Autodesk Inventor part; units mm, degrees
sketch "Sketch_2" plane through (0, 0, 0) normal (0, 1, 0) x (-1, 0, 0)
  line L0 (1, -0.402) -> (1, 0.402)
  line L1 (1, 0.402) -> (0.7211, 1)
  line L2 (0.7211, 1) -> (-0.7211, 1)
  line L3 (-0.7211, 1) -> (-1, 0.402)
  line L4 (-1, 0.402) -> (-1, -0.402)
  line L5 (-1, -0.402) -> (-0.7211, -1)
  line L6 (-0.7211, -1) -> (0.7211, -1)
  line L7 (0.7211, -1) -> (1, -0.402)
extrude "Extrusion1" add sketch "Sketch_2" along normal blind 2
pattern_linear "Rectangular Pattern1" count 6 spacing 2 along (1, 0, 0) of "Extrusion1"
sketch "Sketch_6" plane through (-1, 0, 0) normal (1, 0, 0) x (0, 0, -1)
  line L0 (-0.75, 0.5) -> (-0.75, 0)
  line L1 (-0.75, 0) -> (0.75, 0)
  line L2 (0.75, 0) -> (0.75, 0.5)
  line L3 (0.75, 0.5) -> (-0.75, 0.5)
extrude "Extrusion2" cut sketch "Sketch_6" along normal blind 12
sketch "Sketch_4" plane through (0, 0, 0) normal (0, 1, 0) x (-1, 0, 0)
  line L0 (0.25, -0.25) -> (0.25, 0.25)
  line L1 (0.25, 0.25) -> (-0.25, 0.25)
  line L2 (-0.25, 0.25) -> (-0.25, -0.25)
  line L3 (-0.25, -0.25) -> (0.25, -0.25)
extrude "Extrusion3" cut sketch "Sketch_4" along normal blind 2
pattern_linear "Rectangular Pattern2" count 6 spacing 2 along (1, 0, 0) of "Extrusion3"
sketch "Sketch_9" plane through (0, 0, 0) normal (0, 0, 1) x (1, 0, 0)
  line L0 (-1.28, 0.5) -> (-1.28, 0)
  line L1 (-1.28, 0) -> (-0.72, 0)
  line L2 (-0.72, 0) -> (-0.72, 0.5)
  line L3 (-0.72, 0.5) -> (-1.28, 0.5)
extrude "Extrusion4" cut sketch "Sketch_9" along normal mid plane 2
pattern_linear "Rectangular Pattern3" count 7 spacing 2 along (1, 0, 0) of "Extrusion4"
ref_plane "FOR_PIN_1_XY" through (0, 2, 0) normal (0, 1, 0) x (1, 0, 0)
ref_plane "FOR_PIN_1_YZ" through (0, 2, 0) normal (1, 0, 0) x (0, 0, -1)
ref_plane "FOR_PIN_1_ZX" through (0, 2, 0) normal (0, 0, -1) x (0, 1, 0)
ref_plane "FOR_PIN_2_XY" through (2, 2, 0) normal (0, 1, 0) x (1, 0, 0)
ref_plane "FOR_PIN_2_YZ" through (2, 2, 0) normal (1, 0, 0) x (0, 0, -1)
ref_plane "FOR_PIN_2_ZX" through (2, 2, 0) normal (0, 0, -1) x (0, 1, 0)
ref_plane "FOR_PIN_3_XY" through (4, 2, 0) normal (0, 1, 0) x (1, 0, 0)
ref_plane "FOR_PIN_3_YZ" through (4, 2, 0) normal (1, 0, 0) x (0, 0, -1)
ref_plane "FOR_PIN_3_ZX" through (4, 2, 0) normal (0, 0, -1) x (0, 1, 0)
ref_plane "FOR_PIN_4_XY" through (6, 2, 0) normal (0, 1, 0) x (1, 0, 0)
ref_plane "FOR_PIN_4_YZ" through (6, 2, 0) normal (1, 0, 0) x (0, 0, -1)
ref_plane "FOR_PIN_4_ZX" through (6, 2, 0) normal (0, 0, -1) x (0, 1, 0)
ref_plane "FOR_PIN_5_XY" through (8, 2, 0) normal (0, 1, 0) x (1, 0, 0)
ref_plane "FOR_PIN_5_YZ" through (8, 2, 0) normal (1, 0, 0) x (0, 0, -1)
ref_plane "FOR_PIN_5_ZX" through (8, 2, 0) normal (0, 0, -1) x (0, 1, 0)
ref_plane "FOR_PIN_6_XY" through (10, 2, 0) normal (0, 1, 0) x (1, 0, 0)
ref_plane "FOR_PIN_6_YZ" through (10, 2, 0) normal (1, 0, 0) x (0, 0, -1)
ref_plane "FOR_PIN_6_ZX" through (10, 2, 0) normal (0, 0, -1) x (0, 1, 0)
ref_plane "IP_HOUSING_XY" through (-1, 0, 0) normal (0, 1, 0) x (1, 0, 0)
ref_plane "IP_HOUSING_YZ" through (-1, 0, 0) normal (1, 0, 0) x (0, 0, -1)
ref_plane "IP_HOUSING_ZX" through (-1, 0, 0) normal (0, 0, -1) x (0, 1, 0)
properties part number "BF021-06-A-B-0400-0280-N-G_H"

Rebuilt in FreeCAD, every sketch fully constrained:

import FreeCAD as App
import Part
import Sketcher
from FreeCAD import Vector
Q = App.Units.Quantity

doc = App.newDocument("Part")
body = doc.addObject("PartDesign::Body", "Body")

# Sketch on XZ plane
sketch1 = doc.addObject("Sketcher::SketchObject", "Sketch")
body.addObject(sketch1)
sketch1.AttachmentSupport = (doc.XZ_Plane, [""])
sketch1.MapMode = "FlatFace"
sketch1.addGeometry([
    Part.LineSegment(Vector(-0.7, -1, 0), Vector(-1, -0.4, 0)),  # 0
    Part.LineSegment(Vector(-1, -0.4, 0), Vector(-1, 0.4, 0)),  # 1
    Part.LineSegment(Vector(-1, 0.4, 0), Vector(-0.7, 1, 0)),  # 2
    Part.LineSegment(Vector(-0.7, 1, 0), Vector(0.7, 1, 0)),  # 3
    Part.LineSegment(Vector(0.7, 1, 0), Vector(1, 0.4, 0)),  # 4
    Part.LineSegment(Vector(1, 0.4, 0), Vector(1, -0.4, 0)),  # 5
    Part.LineSegment(Vector(1, -0.4, 0), Vector(0.7, -1, 0)),  # 6
    Part.LineSegment(Vector(0.7, -1, 0), Vector(-0.7, -1, 0)),  # 7
], False)
sketch1.addConstraint([
    Sketcher.Constraint("Coincident", 0, 2, 1, 1),
    Sketcher.Constraint("Coincident", 1, 2, 2, 1),
    Sketcher.Constraint("Coincident", 2, 2, 3, 1),
    Sketcher.Constraint("Coincident", 3, 2, 4, 1),
    Sketcher.Constraint("Coincident", 4, 2, 5, 1),
    Sketcher.Constraint("Coincident", 5, 2, 6, 1),
    Sketcher.Constraint("Coincident", 6, 2, 7, 1),
    Sketcher.Constraint("Coincident", 7, 2, 0, 1),
    Sketcher.Constraint("Vertical", 1),
    Sketcher.Constraint("Horizontal", 3),
    Sketcher.Constraint("Vertical", 5),
    Sketcher.Constraint("Horizontal", 7),
    Sketcher.Constraint("Symmetric", 0, 2, 4, 2, -1, 1),
    Sketcher.Constraint("Symmetric", 2, 2, 6, 2, -1, 1),
    Sketcher.Constraint("Parallel", 0, 4),
    Sketcher.Constraint("Parallel", 2, 6),
    Sketcher.Constraint("Horizontal", 1, 2, 4, 2),
    Sketcher.Constraint("Vertical", 3, 2, 6, 2),
    Sketcher.Constraint("DistanceX", 0, 2, -1, 1, Q("1 mm")),
    Sketcher.Constraint("DistanceY", -1, 1, 2, 2, Q("1 mm")),
    Sketcher.Constraint("DistanceY", 1, 1, 1, 2, Q("0.804 mm")),
    Sketcher.Constraint("DistanceX", 3, 1, 3, 2, Q("1.4422 mm")),
])
pad1 = doc.addObject("PartDesign::Pad", "Pad")
body.addObject(pad1)
pad1.Profile = sketch1
pad1.Length = 2
pad1.Reversed = True
doc.recompute()

linearpattern = doc.addObject("PartDesign::LinearPattern", "LinearPattern")
body.addObject(linearpattern)
linearpattern.Originals = [pad1]
linearpattern.Direction = (doc.X_Axis, [""])
linearpattern.Mode = "offset"
linearpattern.Offset = 2
linearpattern.Occurrences = 6
body.Tip = linearpattern

# Sketch on YZ plane
sketch2 = doc.addObject("Sketcher::SketchObject", "Sketch001")
body.addObject(sketch2)
sketch2.AttachmentSupport = (doc.YZ_Plane, [""])
sketch2.MapMode = "FlatFace"
sketch2.AttachmentOffset = App.Placement(Vector(0, 0, -1), App.Rotation())
sketch2.addGeometry([
    Part.LineSegment(Vector(0.5, -0.8, 0), Vector(0.5, 0.8, 0)),
    Part.LineSegment(Vector(0.5, 0.8, 0), Vector(0, 0.8, 0)),
    Part.LineSegment(Vector(0, 0.8, 0), Vector(0, -0.8, 0)),
    Part.LineSegment(Vector(0, -0.8, 0), Vector(0.5, -0.8, 0)),
], False)
sketch2.addConstraint([
    Sketcher.Constraint("Coincident", 0, 2, 1, 1),
    Sketcher.Constraint("Coincident", 1, 2, 2, 1),
    Sketcher.Constraint("Coincident", 2, 2, 3, 1),
    Sketcher.Constraint("Coincident", 3, 2, 0, 1),
    Sketcher.Constraint("Vertical", 0),
    Sketcher.Constraint("Horizontal", 1),
    Sketcher.Constraint("Vertical", 2),
    Sketcher.Constraint("Horizontal", 3),
    Sketcher.Constraint("Symmetric", 1, 2, 2, 2, -1, 1),
    Sketcher.Constraint("DistanceX", 1, 2, 1, 1, Q("0.5 mm")),
    Sketcher.Constraint("DistanceY", 0, 1, 0, 2, Q("1.5 mm")),
])
pocket1 = doc.addObject("PartDesign::Pocket", "Pocket")
body.addObject(pocket1)
pocket1.Profile = sketch2
pocket1.Length = 12
pocket1.Reversed = True

# Sketch on XZ plane
sketch3 = doc.addObject("Sketcher::SketchObject", "Sketch002")
body.addObject(sketch3)
sketch3.AttachmentSupport = (doc.XZ_Plane, [""])
sketch3.MapMode = "FlatFace"
sketch3.addGeometry([
    Part.LineSegment(Vector(0.2, -0.2, 0), Vector(-0.2, -0.2, 0)),
    Part.LineSegment(Vector(-0.2, -0.2, 0), Vector(-0.2, 0.2, 0)),
    Part.LineSegment(Vector(-0.2, 0.2, 0), Vector(0.2, 0.2, 0)),
    Part.LineSegment(Vector(0.2, 0.2, 0), Vector(0.2, -0.2, 0)),
], False)
sketch3.addConstraint([
    Sketcher.Constraint("Coincident", 0, 2, 1, 1),
    Sketcher.Constraint("Coincident", 1, 2, 2, 1),
    Sketcher.Constraint("Coincident", 2, 2, 3, 1),
    Sketcher.Constraint("Coincident", 3, 2, 0, 1),
    Sketcher.Constraint("Horizontal", 0),
    Sketcher.Constraint("Vertical", 1),
    Sketcher.Constraint("Horizontal", 2),
    Sketcher.Constraint("Vertical", 3),
    Sketcher.Constraint("Symmetric", 0, 2, 2, 2, -1, 1),
    Sketcher.Constraint("Equal", 2, 1),
    Sketcher.Constraint("DistanceX", 0, 2, 0, 1, Q("0.5 mm")),
])
pocket2 = doc.addObject("PartDesign::Pocket", "Pocket001")
body.addObject(pocket2)
pocket2.Profile = sketch3
pocket2.Length = 2
doc.recompute()

linearpattern2 = doc.addObject("PartDesign::LinearPattern", "LinearPattern001")
body.addObject(linearpattern2)
linearpattern2.Originals = [pocket2]
linearpattern2.Direction = (doc.X_Axis, [""])
linearpattern2.Mode = "offset"
linearpattern2.Offset = 2
linearpattern2.Occurrences = 6
body.Tip = linearpattern2

# Sketch on XY plane
sketch4 = doc.addObject("Sketcher::SketchObject", "Sketch003")
body.addObject(sketch4)
sketch4.AttachmentSupport = (doc.XY_Plane, [""])
sketch4.MapMode = "FlatFace"
sketch4.addGeometry([
    Part.LineSegment(Vector(-0.7, 0.5, 0), Vector(-1.3, 0.5, 0)),
    Part.LineSegment(Vector(-1.3, 0.5, 0), Vector(-1.3, 0, 0)),
    Part.LineSegment(Vector(-1.3, 0, 0), Vector(-0.7, 0, 0)),
    Part.LineSegment(Vector(-0.7, 0, 0), Vector(-0.7, 0.5, 0)),
], False)
sketch4.addConstraint([
    Sketcher.Constraint("Coincident", 0, 2, 1, 1),
    Sketcher.Constraint("Coincident", 1, 2, 2, 1),
    Sketcher.Constraint("Coincident", 2, 2, 3, 1),
    Sketcher.Constraint("Coincident", 3, 2, 0, 1),
    Sketcher.Constraint("Horizontal", 0),
    Sketcher.Constraint("Vertical", 1),
    Sketcher.Constraint("Horizontal", 2),
    Sketcher.Constraint("Vertical", 3),
    Sketcher.Constraint("PointOnObject", 1, 2, -1),
    Sketcher.Constraint("DistanceY", 1, 2, 1, 1, Q("0.5 mm")),
    Sketcher.Constraint("DistanceX", 0, 2, 0, 1, Q("0.56 mm")),
    Sketcher.Constraint("DistanceX", 0, 2, -1, 1, Q("1.28 mm")),
])
pocket3 = doc.addObject("PartDesign::Pocket", "Pocket002")
body.addObject(pocket3)
pocket3.Profile = sketch4
pocket3.Length = 2
pocket3.Midplane = True
doc.recompute()

linearpattern3 = doc.addObject("PartDesign::LinearPattern", "LinearPattern002")
body.addObject(linearpattern3)
linearpattern3.Originals = [pocket3]
linearpattern3.Direction = (doc.X_Axis, [""])
linearpattern3.Mode = "offset"
linearpattern3.Offset = 2
linearpattern3.Occurrences = 7
body.Tip = linearpattern3

doc.recompute()
